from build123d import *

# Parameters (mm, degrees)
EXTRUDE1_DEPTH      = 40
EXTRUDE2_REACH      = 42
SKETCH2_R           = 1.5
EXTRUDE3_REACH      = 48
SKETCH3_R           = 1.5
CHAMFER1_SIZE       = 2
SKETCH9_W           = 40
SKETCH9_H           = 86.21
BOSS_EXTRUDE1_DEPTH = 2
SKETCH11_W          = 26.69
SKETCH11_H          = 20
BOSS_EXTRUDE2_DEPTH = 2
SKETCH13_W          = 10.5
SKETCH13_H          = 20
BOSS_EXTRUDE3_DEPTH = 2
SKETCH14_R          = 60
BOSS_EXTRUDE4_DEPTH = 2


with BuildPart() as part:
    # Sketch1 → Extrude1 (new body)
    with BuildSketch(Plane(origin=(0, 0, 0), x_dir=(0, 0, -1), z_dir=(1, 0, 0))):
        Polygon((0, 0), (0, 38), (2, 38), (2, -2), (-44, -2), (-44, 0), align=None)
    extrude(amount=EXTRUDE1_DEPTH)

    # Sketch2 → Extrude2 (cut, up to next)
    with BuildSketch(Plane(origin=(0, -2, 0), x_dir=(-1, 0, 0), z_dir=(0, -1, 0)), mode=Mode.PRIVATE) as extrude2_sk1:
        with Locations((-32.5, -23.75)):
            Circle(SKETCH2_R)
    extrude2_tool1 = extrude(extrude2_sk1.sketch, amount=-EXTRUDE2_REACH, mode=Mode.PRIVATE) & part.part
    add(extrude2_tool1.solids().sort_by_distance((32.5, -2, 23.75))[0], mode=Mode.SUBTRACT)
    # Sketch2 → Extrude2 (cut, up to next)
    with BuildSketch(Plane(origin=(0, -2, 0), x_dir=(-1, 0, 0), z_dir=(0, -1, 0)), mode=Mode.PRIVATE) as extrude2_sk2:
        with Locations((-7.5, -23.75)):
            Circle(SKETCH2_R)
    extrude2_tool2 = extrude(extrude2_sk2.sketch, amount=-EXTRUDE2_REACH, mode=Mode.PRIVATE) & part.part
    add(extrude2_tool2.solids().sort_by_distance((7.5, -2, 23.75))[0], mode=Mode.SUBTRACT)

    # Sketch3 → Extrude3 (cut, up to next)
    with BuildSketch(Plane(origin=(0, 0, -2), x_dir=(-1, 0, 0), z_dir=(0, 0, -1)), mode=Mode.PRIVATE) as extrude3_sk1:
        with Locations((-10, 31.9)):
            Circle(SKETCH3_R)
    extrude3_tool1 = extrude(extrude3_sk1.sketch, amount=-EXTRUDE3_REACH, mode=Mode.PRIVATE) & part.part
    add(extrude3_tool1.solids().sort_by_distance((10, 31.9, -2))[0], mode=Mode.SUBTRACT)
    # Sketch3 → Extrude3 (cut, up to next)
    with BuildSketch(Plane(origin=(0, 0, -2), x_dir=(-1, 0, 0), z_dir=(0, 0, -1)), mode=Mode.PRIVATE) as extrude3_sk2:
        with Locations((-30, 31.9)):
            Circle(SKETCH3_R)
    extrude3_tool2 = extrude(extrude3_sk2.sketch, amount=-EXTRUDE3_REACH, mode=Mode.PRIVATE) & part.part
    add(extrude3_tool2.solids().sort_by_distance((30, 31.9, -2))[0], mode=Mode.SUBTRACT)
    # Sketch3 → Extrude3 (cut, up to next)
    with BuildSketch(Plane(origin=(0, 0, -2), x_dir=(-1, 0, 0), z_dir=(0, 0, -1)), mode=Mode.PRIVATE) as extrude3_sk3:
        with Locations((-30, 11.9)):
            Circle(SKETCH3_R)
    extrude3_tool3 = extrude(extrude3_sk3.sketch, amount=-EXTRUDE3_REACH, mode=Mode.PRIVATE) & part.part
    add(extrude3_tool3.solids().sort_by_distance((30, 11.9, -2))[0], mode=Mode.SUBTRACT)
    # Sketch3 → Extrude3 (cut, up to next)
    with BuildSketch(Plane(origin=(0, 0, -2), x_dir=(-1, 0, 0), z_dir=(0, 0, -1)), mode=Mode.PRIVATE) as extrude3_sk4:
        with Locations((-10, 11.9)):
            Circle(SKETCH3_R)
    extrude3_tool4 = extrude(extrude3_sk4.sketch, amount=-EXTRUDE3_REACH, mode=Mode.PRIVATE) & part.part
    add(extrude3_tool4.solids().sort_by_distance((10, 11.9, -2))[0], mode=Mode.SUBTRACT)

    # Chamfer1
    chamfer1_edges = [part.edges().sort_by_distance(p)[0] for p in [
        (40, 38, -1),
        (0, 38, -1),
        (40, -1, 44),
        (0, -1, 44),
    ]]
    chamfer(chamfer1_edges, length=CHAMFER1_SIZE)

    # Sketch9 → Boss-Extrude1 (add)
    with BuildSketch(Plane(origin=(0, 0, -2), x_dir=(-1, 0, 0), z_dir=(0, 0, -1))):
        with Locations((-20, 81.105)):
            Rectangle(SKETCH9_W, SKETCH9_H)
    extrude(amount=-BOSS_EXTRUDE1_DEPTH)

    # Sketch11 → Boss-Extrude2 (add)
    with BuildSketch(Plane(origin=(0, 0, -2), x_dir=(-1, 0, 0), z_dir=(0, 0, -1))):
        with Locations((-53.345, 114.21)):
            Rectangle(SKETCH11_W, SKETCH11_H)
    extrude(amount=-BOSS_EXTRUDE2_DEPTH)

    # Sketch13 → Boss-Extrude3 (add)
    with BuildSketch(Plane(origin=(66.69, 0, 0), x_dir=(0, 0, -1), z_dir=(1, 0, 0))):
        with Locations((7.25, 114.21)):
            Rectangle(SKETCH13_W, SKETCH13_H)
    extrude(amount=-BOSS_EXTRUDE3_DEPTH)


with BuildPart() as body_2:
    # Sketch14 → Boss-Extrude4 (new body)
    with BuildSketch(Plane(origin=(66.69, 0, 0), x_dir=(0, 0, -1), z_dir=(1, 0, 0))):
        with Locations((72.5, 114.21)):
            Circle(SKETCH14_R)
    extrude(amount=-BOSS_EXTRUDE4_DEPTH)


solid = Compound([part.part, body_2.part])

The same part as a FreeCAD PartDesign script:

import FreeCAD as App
import Part
import Sketcher
Q = App.Units.Quantity


def edges_at(feature, points):
    """Names of the edges that pass closest to the given points."""
    edges = feature.Shape.Edges
    near = lambda p: min(range(len(edges)), key=lambda i: edges[i].distToShape(Part.Vertex(*p))[0])
    return sorted({f"Edge{near(p) + 1}" for p in points})


def add_polygon(sketch, points):
    """Adds a closed chain of lines whose ends are joined by coincident constraints."""
    first, n = sketch.GeometryCount, len(points)
    for a, b in zip(points, points[1:] + points[:1]):
        sketch.addGeometry(Part.LineSegment(App.Vector(*a, 0), App.Vector(*b, 0)), False)
    for i in range(n):
        sketch.addConstraint(Sketcher.Constraint("Coincident", first + i, 2, first + (i + 1) % n, 1))

doc = App.newDocument("Part")
body = doc.addObject("PartDesign::Body", "Body")

# Sketch on YZ plane
sketch1 = body.newObject("Sketcher::SketchObject", "Sketch")
sketch1.AttachmentSupport = (doc.getObject("YZ_Plane"), [""])
sketch1.MapMode = "FlatFace"
add_polygon(sketch1, [(38, 0), (0, 0), (0, 44), (-2, 44), (-2, -2), (38, -2)])  # lines 0-5
sketch1.addConstraint(Sketcher.Constraint("Horizontal", 0))
sketch1.addConstraint(Sketcher.Constraint("Vertical", 1))
sketch1.addConstraint(Sketcher.Constraint("Horizontal", 2))
sketch1.addConstraint(Sketcher.Constraint("Vertical", 3))
sketch1.addConstraint(Sketcher.Constraint("Horizontal", 4))
sketch1.addConstraint(Sketcher.Constraint("Vertical", 5))
sketch1.addConstraint(Sketcher.Constraint("Coincident", 0, 2, -1, 1))
sketch1.addConstraint(Sketcher.Constraint("Equal", 2, 5))
sketch1.addConstraint(Sketcher.Constraint("DistanceX", 0, 2, 0, 1, Q("38 mm")))
sketch1.addConstraint(Sketcher.Constraint("DistanceX", 2, 2, 2, 1, Q("2 mm")))
sketch1.addConstraint(Sketcher.Constraint("DistanceY", 1, 1, 1, 2, Q("44 mm")))
pad1 = body.newObject("PartDesign::Pad", "Pad")
pad1.Profile = sketch1
pad1.Length = 40

# Sketch on XZ plane
sketch2 = body.newObject("Sketcher::SketchObject", "Sketch001")
sketch2.AttachmentSupport = (doc.getObject("XZ_Plane"), [""])
sketch2.MapMode = "FlatFace"
sketch2.AttachmentOffset = App.Placement(App.Vector(0, 0, 2), App.Rotation())
sketch2.addGeometry(Part.Circle(App.Vector(32.5, 23.8, 0), App.Vector(0, 0, 1), 1.5), False)
sketch2.addConstraint(Sketcher.Constraint("Diameter", 0, Q("3 mm")))
sketch2.addConstraint(Sketcher.Constraint("DistanceX", -1, 1, 0, 3, Q("32.5 mm")))
sketch2.addConstraint(Sketcher.Constraint("DistanceY", -1, 1, 0, 3, Q("23.75 mm")))
pocket1 = body.newObject("PartDesign::Pocket", "Pocket")
pocket1.Profile = sketch2
pocket1.Type = "UpToFirst"

# Sketch on XZ plane
sketch3 = body.newObject("Sketcher::SketchObject", "Sketch002")
sketch3.AttachmentSupport = (doc.getObject("XZ_Plane"), [""])
sketch3.MapMode = "FlatFace"
sketch3.AttachmentOffset = App.Placement(App.Vector(0, 0, 2), App.Rotation())
sketch3.addGeometry(Part.Circle(App.Vector(7.5, 23.8, 0), App.Vector(0, 0, 1), 1.5), False)
sketch3.addConstraint(Sketcher.Constraint("Diameter", 0, Q("3 mm")))
sketch3.addConstraint(Sketcher.Constraint("DistanceX", -1, 1, 0, 3, Q("7.5 mm")))
sketch3.addConstraint(Sketcher.Constraint("DistanceY", -1, 1, 0, 3, Q("23.75 mm")))
pocket2 = body.newObject("PartDesign::Pocket", "Pocket001")
pocket2.Profile = sketch3
pocket2.Type = "UpToFirst"

# Sketch on XY plane
sketch4 = body.newObject("Sketcher::SketchObject", "Sketch003")
sketch4.AttachmentSupport = (doc.getObject("XY_Plane"), [""])
sketch4.MapMode = "FlatFace"
sketch4.AttachmentOffset = App.Placement(App.Vector(0, 0, -2), App.Rotation())
sketch4.addGeometry(Part.Circle(App.Vector(10, 31.9, 0), App.Vector(0, 0, 1), 1.5), False)
sketch4.addConstraint(Sketcher.Constraint("Diameter", 0, Q("3 mm")))
sketch4.addConstraint(Sketcher.Constraint("DistanceX", -1, 1, 0, 3, Q("10 mm")))
sketch4.addConstraint(Sketcher.Constraint("DistanceY", -1, 1, 0, 3, Q("31.9 mm")))
pocket3 = body.newObject("PartDesign::Pocket", "Pocket002")
pocket3.Profile = sketch4
pocket3.Type = "UpToFirst"
pocket3.Reversed = True

# Sketch on XY plane
sketch5 = body.newObject("Sketcher::SketchObject", "Sketch004")
sketch5.AttachmentSupport = (doc.getObject("XY_Plane"), [""])
sketch5.MapMode = "FlatFace"
sketch5.AttachmentOffset = App.Placement(App.Vector(0, 0, -2), App.Rotation())
sketch5.addGeometry(Part.Circle(App.Vector(30, 31.9, 0), App.Vector(0, 0, 1), 1.5), False)
sketch5.addConstraint(Sketcher.Constraint("Diameter", 0, Q("3 mm")))
sketch5.addConstraint(Sketcher.Constraint("DistanceX", -1, 1, 0, 3, Q("30 mm")))
sketch5.addConstraint(Sketcher.Constraint("DistanceY", -1, 1, 0, 3, Q("31.9 mm")))
pocket4 = body.newObject("PartDesign::Pocket", "Pocket003")
pocket4.Profile = sketch5
pocket4.Type = "UpToFirst"
pocket4.Reversed = True

# Sketch on XY plane
sketch6 = body.newObject("Sketcher::SketchObject", "Sketch005")
sketch6.AttachmentSupport = (doc.getObject("XY_Plane"), [""])
sketch6.MapMode = "FlatFace"
sketch6.AttachmentOffset = App.Placement(App.Vector(0, 0, -2), App.Rotation())
sketch6.addGeometry(Part.Circle(App.Vector(30, 11.9, 0), App.Vector(0, 0, 1), 1.5), False)
sketch6.addConstraint(Sketcher.Constraint("Diameter", 0, Q("3 mm")))
sketch6.addConstraint(Sketcher.Constraint("DistanceX", -1, 1, 0, 3, Q("30 mm")))
sketch6.addConstraint(Sketcher.Constraint("DistanceY", -1, 1, 0, 3, Q("11.9 mm")))
pocket5 = body.newObject("PartDesign::Pocket", "Pocket004")
pocket5.Profile = sketch6
pocket5.Type = "UpToFirst"
pocket5.Reversed = True

# Sketch on XY plane
sketch7 = body.newObject("Sketcher::SketchObject", "Sketch006")
sketch7.AttachmentSupport = (doc.getObject("XY_Plane"), [""])
sketch7.MapMode = "FlatFace"
sketch7.AttachmentOffset = App.Placement(App.Vector(0, 0, -2), App.Rotation())
sketch7.addGeometry(Part.Circle(App.Vector(10, 11.9, 0), App.Vector(0, 0, 1), 1.5), False)
sketch7.addConstraint(Sketcher.Constraint("Diameter", 0, Q("3 mm")))
sketch7.addConstraint(Sketcher.Constraint("DistanceX", -1, 1, 0, 3, Q("10 mm")))
sketch7.addConstraint(Sketcher.Constraint("DistanceY", -1, 1, 0, 3, Q("11.9 mm")))
pocket6 = body.newObject("PartDesign::Pocket", "Pocket005")
pocket6.Profile = sketch7
pocket6.Type = "UpToFirst"
pocket6.Reversed = True
doc.recompute()

chamfer = body.newObject("PartDesign::Chamfer", "Chamfer")
chamfer.Base = (pocket6, edges_at(pocket6, [
    (40, 38, -1),
    (0, 38, -1),
    (40, -1, 44),
    (0, -1, 44),
]))
chamfer.Size = 2

# Sketch on XY plane
sketch8 = body.newObject("Sketcher::SketchObject", "Sketch007")
sketch8.AttachmentSupport = (doc.getObject("XY_Plane"), [""])
sketch8.MapMode = "FlatFace"
sketch8.AttachmentOffset = App.Placement(App.Vector(0, 0, -2), App.Rotation())
add_polygon(sketch8, [(40, 124), (40, 38), (0, 38), (0, 124)])  # lines 0-3
sketch8.addConstraint(Sketcher.Constraint("Vertical", 0))
sketch8.addConstraint(Sketcher.Constraint("Horizontal", 1))
sketch8.addConstraint(Sketcher.Constraint("Vertical", 2))
sketch8.addConstraint(Sketcher.Constraint("Horizontal", 3))
sketch8.addConstraint(Sketcher.Constraint("PointOnObject", 1, 2, -2))
sketch8.addConstraint(Sketcher.Constraint("DistanceX", 1, 2, 1, 1, Q("40 mm")))
sketch8.addConstraint(Sketcher.Constraint("DistanceY", -1, 1, 0, 2, Q("38 mm")))
sketch8.addConstraint(Sketcher.Constraint("DistanceY", 0, 2, 0, 1, Q("86.21 mm")))
pad2 = body.newObject("PartDesign::Pad", "Pad001")
pad2.Profile = sketch8
pad2.Length = 2

# Sketch on XY plane
sketch9 = body.newObject("Sketcher::SketchObject", "Sketch008")
sketch9.AttachmentSupport = (doc.getObject("XY_Plane"), [""])
sketch9.MapMode = "FlatFace"
sketch9.AttachmentOffset = App.Placement(App.Vector(0, 0, -2), App.Rotation())
add_polygon(sketch9, [(67, 124), (67, 104), (40, 104), (40, 124)])  # lines 0-3
sketch9.addConstraint(Sketcher.Constraint("Vertical", 0))
sketch9.addConstraint(Sketcher.Constraint("Horizontal", 1))
sketch9.addConstraint(Sketcher.Constraint("Vertical", 2))
sketch9.addConstraint(Sketcher.Constraint("Horizontal", 3))
sketch9.addConstraint(Sketcher.Constraint("DistanceY", 0, 2, 0, 1, Q("20 mm")))
sketch9.addConstraint(Sketcher.Constraint("DistanceX", -1, 1, 1, 2, Q("40 mm")))
sketch9.addConstraint(Sketcher.Constraint("DistanceX", 1, 2, 1, 1, Q("26.69 mm")))
sketch9.addConstraint(Sketcher.Constraint("DistanceY", -1, 1, 0, 2, Q("104.21 mm")))
pad3 = body.newObject("PartDesign::Pad", "Pad002")
pad3.Profile = sketch9
pad3.Length = 2

# Sketch on YZ plane
sketch10 = body.newObject("Sketcher::SketchObject", "Sketch009")
sketch10.AttachmentSupport = (doc.getObject("YZ_Plane"), [""])
sketch10.MapMode = "FlatFace"
sketch10.AttachmentOffset = App.Placement(App.Vector(0, 0, 66.69), App.Rotation())
add_polygon(sketch10, [(124, -2), (104, -2), (104, -12), (124, -12)])  # lines 0-3
sketch10.addConstraint(Sketcher.Constraint("Horizontal", 0))
sketch10.addConstraint(Sketcher.Constraint("Vertical", 1))
sketch10.addConstraint(Sketcher.Constraint("Horizontal", 2))
sketch10.addConstraint(Sketcher.Constraint("Vertical", 3))
sketch10.addConstraint(Sketcher.Constraint("DistanceX", 0, 2, 0, 1, Q("20 mm")))
sketch10.addConstraint(Sketcher.Constraint("DistanceY", 1, 2, 1, 1, Q("10.5 mm")))
sketch10.addConstraint(Sketcher.Constraint("DistanceY", 0, 2, -1, 1, Q("2 mm")))
sketch10.addConstraint(Sketcher.Constraint("DistanceX", -1, 1, 0, 2, Q("104.21 mm")))
pad4 = body.newObject("PartDesign::Pad", "Pad003")
pad4.Profile = sketch10
pad4.Length = 2
pad4.Reversed = True
body2 = doc.addObject("PartDesign::Body", "Body001")

# Sketch on YZ plane
sketch11 = body2.newObject("Sketcher::SketchObject", "Sketch010")
sketch11.AttachmentSupport = (doc.getObject("YZ_Plane001"), [""])
sketch11.MapMode = "FlatFace"
sketch11.AttachmentOffset = App.Placement(App.Vector(0, 0, 66.69), App.Rotation())
sketch11.addGeometry(Part.Circle(App.Vector(114, -72, 0), App.Vector(0, 0, 1), 60), False)
sketch11.addConstraint(Sketcher.Constraint("Diameter", 0, Q("120 mm")))
sketch11.addConstraint(Sketcher.Constraint("DistanceY", 0, 3, -1, 1, Q("72.5 mm")))
sketch11.addConstraint(Sketcher.Constraint("DistanceX", -1, 1, 0, 3, Q("114.21 mm")))
pad5 = body2.newObject("PartDesign::Pad", "Pad004")
pad5.Profile = sketch11
pad5.Length = 2
pad5.Reversed = True

doc.recompute()
